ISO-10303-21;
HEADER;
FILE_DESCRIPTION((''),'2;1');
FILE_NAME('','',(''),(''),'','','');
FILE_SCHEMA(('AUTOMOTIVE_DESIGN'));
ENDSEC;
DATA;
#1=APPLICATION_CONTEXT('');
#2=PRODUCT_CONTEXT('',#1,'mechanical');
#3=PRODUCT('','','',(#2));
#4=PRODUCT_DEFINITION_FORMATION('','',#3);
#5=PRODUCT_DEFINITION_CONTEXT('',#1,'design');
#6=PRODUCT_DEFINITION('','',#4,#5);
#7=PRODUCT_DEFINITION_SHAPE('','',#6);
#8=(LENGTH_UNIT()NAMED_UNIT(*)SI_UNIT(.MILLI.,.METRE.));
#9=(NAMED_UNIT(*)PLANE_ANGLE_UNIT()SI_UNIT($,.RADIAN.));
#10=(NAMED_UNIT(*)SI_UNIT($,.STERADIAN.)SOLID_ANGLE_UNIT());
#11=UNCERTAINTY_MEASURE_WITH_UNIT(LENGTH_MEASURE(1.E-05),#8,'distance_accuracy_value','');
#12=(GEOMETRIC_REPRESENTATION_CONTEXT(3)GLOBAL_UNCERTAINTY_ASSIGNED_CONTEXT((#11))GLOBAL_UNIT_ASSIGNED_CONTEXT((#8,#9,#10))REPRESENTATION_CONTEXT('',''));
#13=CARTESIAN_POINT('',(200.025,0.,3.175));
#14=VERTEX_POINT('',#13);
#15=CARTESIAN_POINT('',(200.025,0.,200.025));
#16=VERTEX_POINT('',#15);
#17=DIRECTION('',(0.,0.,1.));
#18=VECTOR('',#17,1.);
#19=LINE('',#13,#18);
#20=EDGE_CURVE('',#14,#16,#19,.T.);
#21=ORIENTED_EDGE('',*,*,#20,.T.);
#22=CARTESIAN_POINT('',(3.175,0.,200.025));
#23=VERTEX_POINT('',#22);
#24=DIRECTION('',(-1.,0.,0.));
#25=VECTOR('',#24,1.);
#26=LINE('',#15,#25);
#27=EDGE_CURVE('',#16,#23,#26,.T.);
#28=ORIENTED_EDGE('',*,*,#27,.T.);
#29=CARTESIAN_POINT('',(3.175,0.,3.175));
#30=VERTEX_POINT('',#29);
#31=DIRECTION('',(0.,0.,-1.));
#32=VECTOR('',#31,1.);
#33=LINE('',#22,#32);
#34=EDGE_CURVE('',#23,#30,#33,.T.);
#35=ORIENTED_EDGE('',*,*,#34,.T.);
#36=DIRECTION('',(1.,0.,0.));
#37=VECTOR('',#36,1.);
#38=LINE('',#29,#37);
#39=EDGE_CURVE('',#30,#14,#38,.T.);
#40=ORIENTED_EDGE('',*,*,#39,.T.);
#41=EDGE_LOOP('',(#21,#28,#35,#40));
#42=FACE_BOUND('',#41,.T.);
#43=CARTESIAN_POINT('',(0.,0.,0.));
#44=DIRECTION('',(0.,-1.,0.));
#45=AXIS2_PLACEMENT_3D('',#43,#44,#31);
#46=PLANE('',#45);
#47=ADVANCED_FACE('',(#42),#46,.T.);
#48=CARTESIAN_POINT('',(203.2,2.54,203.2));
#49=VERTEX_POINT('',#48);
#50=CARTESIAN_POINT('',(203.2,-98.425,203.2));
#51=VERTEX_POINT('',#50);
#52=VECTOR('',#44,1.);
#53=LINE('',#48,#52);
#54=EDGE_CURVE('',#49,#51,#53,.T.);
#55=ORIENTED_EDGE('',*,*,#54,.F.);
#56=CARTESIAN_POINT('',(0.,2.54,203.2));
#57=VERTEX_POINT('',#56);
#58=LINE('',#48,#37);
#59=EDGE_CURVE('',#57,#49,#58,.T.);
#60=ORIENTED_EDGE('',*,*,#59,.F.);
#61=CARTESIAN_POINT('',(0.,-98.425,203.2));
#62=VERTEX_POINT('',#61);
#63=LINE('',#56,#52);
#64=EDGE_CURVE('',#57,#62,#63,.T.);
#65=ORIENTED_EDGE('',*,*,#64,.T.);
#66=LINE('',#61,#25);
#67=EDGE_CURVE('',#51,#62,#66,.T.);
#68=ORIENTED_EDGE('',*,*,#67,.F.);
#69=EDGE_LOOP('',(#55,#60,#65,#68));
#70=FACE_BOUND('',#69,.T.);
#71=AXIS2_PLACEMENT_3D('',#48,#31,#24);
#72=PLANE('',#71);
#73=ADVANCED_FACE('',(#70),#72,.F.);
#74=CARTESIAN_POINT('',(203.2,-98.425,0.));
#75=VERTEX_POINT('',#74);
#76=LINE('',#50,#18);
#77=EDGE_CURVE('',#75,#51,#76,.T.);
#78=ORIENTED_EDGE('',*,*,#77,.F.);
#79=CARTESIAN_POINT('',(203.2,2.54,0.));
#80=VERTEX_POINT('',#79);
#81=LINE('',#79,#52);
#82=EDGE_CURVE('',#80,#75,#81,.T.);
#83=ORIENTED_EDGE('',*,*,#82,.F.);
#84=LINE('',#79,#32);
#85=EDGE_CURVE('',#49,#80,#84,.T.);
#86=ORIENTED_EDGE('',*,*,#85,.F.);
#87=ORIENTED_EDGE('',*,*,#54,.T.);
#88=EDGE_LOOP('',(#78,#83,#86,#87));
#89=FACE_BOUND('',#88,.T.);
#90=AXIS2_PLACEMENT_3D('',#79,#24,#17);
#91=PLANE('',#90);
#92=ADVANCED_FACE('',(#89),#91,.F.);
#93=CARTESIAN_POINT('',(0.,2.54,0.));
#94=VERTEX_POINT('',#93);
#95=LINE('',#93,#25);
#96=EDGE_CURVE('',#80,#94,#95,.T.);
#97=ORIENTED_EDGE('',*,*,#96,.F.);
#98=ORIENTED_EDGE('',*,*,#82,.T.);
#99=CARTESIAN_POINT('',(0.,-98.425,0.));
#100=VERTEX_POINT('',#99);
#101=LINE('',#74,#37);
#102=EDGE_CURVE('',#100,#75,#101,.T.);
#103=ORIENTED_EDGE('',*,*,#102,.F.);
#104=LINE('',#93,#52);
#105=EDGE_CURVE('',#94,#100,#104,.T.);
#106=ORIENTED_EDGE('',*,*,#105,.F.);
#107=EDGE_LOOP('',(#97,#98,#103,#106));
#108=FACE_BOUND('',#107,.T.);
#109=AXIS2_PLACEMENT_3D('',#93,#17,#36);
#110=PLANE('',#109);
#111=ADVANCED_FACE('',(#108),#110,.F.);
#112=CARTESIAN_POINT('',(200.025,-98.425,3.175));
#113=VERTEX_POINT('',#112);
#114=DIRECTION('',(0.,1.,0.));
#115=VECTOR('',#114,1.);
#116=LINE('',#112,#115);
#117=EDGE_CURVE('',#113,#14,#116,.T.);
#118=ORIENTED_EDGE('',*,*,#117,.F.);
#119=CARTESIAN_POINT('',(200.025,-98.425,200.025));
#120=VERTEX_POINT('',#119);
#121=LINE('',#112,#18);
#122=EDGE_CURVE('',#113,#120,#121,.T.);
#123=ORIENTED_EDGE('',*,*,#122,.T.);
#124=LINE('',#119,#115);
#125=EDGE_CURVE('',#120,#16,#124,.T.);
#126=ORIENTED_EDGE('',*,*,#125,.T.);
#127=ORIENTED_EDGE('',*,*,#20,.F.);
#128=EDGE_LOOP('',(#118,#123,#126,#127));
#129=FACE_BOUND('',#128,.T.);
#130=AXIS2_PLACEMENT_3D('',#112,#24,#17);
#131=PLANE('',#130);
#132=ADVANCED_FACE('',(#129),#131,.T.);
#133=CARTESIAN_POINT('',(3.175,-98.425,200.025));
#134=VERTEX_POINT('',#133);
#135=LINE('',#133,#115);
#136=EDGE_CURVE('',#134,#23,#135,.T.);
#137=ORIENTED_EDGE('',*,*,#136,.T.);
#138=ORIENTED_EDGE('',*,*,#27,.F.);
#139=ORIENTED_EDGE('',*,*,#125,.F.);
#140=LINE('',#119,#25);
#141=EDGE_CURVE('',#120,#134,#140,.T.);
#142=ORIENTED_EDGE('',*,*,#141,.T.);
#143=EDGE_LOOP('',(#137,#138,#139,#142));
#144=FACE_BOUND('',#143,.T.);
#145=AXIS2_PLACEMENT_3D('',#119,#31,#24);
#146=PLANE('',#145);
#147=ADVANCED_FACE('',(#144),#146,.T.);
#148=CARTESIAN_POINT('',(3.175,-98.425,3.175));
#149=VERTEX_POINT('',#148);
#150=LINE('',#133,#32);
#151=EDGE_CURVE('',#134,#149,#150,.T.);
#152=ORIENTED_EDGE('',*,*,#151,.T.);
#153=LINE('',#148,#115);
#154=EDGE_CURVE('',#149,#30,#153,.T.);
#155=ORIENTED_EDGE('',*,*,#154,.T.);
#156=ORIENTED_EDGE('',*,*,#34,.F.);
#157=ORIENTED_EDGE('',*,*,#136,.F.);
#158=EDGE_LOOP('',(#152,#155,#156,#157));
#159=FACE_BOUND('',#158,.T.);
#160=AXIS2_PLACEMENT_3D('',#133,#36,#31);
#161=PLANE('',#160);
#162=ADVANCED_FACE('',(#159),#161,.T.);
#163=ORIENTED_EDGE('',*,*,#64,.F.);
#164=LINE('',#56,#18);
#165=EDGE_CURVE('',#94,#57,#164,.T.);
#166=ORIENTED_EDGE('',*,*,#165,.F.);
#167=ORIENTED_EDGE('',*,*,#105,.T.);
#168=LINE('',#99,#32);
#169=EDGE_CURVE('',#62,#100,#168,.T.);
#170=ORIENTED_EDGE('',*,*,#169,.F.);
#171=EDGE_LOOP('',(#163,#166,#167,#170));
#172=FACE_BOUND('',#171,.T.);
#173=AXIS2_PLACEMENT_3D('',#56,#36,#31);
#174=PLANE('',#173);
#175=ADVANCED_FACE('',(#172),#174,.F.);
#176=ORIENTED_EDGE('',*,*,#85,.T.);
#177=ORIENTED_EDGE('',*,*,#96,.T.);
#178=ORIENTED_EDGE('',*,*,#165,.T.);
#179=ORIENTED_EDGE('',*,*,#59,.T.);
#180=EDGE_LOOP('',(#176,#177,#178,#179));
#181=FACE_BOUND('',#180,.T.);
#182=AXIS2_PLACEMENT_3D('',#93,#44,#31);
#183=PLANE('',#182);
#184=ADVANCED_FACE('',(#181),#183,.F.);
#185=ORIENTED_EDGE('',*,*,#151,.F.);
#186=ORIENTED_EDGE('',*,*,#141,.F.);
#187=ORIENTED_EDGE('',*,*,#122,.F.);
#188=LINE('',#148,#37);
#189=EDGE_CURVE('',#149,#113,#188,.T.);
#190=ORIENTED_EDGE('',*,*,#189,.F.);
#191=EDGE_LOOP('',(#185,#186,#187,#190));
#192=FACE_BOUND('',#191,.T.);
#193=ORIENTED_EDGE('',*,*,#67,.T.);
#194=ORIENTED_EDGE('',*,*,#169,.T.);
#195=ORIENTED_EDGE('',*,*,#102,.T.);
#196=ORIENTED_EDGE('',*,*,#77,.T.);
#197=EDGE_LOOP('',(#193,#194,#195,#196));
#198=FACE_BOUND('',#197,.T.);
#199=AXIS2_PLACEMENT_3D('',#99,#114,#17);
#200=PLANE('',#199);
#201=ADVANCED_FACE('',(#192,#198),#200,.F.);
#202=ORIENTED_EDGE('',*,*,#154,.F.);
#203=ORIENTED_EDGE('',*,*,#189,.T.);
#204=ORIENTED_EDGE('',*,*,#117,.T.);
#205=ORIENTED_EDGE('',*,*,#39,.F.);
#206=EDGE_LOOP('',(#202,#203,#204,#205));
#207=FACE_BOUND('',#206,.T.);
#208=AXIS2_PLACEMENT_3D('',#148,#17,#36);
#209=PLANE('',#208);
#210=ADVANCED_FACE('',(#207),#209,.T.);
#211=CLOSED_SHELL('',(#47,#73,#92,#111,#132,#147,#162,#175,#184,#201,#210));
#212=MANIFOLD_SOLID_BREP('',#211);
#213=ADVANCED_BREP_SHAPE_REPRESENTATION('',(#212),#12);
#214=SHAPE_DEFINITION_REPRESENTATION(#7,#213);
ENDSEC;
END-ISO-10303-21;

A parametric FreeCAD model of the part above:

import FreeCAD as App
import Part
import Sketcher
Q = App.Units.Quantity


def add_polygon(sketch, points):
    """Adds a closed chain of lines whose ends are joined by coincident constraints."""
    first, n = sketch.GeometryCount, len(points)
    for a, b in zip(points, points[1:] + points[:1]):
        sketch.addGeometry(Part.LineSegment(App.Vector(*a, 0), App.Vector(*b, 0)), False)
    for i in range(n):
        sketch.addConstraint(Sketcher.Constraint("Coincident", first + i, 2, first + (i + 1) % n, 1))

doc = App.newDocument("Part")
params = doc.addObject("Spreadsheet::Sheet", "Params")
for row, (alias, value) in enumerate([
    ("sketch1_width", "8 in"),
    ("pad1_length", "0.1 in"),
    ("sketch2_width", "8 in"),
    ("sketch2_width2", "7.75 in"),
    ("pad2_length", "3.875 in"),
], start=1):
    params.set(f"A{row}", alias)
    params.set(f"B{row}", "=" + value)
    params.setAlias(f"B{row}", alias)

body = doc.addObject("PartDesign::Body", "Body")

sketch1 = body.newObject("Sketcher::SketchObject", "Sketch")
sketch1.AttachmentSupport = (doc.getObject("XZ_Plane"), [""])
sketch1.MapMode = "FlatFace"
add_polygon(sketch1, [(0, 0), (0, 203.2), (203.2, 203.2), (203.2, 0)])
sketch1.addConstraint(Sketcher.Constraint("Vertical", 0))
sketch1.addConstraint(Sketcher.Constraint("Horizontal", 1))
sketch1.addConstraint(Sketcher.Constraint("Vertical", 2))
sketch1.addConstraint(Sketcher.Constraint("Horizontal", 3))
sketch1.addConstraint(Sketcher.Constraint("Coincident", 3, 2, -1, 1))
sketch1.addConstraint(Sketcher.Constraint("Equal", 3, 0))
sketch1.addConstraint(Sketcher.Constraint("DistanceX", 1, 1, 1, 2, Q("8 in")))
sketch1.setExpression("Constraints[10]", "Params.sketch1_width")
pad1 = body.newObject("PartDesign::Pad", "Pad")
pad1.Profile = sketch1
pad1.setExpression("Length", "Params.pad1_length")
pad1.Reversed = True

sketch2 = body.newObject("Sketcher::SketchObject", "Sketch001")
sketch2.AttachmentSupport = (doc.getObject("XZ_Plane"), [""])
sketch2.MapMode = "FlatFace"
add_polygon(sketch2, [(0, 203.2), (0, 0), (203.2, 0), (203.2, 203.2)])
add_polygon(sketch2, [(200.025, 3.175), (3.175, 3.175), (3.175, 200.025), (200.025, 200.025)])
sketch2.addConstraint(Sketcher.Constraint("Vertical", 0))
sketch2.addConstraint(Sketcher.Constraint("Horizontal", 1))
sketch2.addConstraint(Sketcher.Constraint("Vertical", 2))
sketch2.addConstraint(Sketcher.Constraint("Horizontal", 3))
sketch2.addConstraint(Sketcher.Constraint("Horizontal", 4))
sketch2.addConstraint(Sketcher.Constraint("Vertical", 5))
sketch2.addConstraint(Sketcher.Constraint("Horizontal", 6))
sketch2.addConstraint(Sketcher.Constraint("Vertical", 7))
sketch2.addConstraint(Sketcher.Constraint("Coincident", 0, 2, -1, 1))
sketch2.addConstraint(Sketcher.Constraint("Equal", 3, 0))
sketch2.addConstraint(Sketcher.Constraint("Equal", 6, 5))
sketch2.addConstraint(Sketcher.Constraint("DistanceX", 1, 1, 1, 2, Q("8 in")))
sketch2.addConstraint(Sketcher.Constraint("DistanceX", 4, 2, 4, 1, Q("7.75 in")))
sketch2.addConstraint(Sketcher.Constraint("DistanceX", -1, 1, 4, 2, Q("0.125 in")))
sketch2.addConstraint(Sketcher.Constraint("DistanceY", -1, 1, 4, 2, Q("0.125 in")))
sketch2.setExpression("Constraints[19]", "Params.sketch2_width")
sketch2.setExpression("Constraints[20]", "Params.sketch2_width2")
pad2 = body.newObject("PartDesign::Pad", "Pad001")
pad2.Profile = sketch2
pad2.setExpression("Length", "Params.pad2_length")

doc.recompute()
